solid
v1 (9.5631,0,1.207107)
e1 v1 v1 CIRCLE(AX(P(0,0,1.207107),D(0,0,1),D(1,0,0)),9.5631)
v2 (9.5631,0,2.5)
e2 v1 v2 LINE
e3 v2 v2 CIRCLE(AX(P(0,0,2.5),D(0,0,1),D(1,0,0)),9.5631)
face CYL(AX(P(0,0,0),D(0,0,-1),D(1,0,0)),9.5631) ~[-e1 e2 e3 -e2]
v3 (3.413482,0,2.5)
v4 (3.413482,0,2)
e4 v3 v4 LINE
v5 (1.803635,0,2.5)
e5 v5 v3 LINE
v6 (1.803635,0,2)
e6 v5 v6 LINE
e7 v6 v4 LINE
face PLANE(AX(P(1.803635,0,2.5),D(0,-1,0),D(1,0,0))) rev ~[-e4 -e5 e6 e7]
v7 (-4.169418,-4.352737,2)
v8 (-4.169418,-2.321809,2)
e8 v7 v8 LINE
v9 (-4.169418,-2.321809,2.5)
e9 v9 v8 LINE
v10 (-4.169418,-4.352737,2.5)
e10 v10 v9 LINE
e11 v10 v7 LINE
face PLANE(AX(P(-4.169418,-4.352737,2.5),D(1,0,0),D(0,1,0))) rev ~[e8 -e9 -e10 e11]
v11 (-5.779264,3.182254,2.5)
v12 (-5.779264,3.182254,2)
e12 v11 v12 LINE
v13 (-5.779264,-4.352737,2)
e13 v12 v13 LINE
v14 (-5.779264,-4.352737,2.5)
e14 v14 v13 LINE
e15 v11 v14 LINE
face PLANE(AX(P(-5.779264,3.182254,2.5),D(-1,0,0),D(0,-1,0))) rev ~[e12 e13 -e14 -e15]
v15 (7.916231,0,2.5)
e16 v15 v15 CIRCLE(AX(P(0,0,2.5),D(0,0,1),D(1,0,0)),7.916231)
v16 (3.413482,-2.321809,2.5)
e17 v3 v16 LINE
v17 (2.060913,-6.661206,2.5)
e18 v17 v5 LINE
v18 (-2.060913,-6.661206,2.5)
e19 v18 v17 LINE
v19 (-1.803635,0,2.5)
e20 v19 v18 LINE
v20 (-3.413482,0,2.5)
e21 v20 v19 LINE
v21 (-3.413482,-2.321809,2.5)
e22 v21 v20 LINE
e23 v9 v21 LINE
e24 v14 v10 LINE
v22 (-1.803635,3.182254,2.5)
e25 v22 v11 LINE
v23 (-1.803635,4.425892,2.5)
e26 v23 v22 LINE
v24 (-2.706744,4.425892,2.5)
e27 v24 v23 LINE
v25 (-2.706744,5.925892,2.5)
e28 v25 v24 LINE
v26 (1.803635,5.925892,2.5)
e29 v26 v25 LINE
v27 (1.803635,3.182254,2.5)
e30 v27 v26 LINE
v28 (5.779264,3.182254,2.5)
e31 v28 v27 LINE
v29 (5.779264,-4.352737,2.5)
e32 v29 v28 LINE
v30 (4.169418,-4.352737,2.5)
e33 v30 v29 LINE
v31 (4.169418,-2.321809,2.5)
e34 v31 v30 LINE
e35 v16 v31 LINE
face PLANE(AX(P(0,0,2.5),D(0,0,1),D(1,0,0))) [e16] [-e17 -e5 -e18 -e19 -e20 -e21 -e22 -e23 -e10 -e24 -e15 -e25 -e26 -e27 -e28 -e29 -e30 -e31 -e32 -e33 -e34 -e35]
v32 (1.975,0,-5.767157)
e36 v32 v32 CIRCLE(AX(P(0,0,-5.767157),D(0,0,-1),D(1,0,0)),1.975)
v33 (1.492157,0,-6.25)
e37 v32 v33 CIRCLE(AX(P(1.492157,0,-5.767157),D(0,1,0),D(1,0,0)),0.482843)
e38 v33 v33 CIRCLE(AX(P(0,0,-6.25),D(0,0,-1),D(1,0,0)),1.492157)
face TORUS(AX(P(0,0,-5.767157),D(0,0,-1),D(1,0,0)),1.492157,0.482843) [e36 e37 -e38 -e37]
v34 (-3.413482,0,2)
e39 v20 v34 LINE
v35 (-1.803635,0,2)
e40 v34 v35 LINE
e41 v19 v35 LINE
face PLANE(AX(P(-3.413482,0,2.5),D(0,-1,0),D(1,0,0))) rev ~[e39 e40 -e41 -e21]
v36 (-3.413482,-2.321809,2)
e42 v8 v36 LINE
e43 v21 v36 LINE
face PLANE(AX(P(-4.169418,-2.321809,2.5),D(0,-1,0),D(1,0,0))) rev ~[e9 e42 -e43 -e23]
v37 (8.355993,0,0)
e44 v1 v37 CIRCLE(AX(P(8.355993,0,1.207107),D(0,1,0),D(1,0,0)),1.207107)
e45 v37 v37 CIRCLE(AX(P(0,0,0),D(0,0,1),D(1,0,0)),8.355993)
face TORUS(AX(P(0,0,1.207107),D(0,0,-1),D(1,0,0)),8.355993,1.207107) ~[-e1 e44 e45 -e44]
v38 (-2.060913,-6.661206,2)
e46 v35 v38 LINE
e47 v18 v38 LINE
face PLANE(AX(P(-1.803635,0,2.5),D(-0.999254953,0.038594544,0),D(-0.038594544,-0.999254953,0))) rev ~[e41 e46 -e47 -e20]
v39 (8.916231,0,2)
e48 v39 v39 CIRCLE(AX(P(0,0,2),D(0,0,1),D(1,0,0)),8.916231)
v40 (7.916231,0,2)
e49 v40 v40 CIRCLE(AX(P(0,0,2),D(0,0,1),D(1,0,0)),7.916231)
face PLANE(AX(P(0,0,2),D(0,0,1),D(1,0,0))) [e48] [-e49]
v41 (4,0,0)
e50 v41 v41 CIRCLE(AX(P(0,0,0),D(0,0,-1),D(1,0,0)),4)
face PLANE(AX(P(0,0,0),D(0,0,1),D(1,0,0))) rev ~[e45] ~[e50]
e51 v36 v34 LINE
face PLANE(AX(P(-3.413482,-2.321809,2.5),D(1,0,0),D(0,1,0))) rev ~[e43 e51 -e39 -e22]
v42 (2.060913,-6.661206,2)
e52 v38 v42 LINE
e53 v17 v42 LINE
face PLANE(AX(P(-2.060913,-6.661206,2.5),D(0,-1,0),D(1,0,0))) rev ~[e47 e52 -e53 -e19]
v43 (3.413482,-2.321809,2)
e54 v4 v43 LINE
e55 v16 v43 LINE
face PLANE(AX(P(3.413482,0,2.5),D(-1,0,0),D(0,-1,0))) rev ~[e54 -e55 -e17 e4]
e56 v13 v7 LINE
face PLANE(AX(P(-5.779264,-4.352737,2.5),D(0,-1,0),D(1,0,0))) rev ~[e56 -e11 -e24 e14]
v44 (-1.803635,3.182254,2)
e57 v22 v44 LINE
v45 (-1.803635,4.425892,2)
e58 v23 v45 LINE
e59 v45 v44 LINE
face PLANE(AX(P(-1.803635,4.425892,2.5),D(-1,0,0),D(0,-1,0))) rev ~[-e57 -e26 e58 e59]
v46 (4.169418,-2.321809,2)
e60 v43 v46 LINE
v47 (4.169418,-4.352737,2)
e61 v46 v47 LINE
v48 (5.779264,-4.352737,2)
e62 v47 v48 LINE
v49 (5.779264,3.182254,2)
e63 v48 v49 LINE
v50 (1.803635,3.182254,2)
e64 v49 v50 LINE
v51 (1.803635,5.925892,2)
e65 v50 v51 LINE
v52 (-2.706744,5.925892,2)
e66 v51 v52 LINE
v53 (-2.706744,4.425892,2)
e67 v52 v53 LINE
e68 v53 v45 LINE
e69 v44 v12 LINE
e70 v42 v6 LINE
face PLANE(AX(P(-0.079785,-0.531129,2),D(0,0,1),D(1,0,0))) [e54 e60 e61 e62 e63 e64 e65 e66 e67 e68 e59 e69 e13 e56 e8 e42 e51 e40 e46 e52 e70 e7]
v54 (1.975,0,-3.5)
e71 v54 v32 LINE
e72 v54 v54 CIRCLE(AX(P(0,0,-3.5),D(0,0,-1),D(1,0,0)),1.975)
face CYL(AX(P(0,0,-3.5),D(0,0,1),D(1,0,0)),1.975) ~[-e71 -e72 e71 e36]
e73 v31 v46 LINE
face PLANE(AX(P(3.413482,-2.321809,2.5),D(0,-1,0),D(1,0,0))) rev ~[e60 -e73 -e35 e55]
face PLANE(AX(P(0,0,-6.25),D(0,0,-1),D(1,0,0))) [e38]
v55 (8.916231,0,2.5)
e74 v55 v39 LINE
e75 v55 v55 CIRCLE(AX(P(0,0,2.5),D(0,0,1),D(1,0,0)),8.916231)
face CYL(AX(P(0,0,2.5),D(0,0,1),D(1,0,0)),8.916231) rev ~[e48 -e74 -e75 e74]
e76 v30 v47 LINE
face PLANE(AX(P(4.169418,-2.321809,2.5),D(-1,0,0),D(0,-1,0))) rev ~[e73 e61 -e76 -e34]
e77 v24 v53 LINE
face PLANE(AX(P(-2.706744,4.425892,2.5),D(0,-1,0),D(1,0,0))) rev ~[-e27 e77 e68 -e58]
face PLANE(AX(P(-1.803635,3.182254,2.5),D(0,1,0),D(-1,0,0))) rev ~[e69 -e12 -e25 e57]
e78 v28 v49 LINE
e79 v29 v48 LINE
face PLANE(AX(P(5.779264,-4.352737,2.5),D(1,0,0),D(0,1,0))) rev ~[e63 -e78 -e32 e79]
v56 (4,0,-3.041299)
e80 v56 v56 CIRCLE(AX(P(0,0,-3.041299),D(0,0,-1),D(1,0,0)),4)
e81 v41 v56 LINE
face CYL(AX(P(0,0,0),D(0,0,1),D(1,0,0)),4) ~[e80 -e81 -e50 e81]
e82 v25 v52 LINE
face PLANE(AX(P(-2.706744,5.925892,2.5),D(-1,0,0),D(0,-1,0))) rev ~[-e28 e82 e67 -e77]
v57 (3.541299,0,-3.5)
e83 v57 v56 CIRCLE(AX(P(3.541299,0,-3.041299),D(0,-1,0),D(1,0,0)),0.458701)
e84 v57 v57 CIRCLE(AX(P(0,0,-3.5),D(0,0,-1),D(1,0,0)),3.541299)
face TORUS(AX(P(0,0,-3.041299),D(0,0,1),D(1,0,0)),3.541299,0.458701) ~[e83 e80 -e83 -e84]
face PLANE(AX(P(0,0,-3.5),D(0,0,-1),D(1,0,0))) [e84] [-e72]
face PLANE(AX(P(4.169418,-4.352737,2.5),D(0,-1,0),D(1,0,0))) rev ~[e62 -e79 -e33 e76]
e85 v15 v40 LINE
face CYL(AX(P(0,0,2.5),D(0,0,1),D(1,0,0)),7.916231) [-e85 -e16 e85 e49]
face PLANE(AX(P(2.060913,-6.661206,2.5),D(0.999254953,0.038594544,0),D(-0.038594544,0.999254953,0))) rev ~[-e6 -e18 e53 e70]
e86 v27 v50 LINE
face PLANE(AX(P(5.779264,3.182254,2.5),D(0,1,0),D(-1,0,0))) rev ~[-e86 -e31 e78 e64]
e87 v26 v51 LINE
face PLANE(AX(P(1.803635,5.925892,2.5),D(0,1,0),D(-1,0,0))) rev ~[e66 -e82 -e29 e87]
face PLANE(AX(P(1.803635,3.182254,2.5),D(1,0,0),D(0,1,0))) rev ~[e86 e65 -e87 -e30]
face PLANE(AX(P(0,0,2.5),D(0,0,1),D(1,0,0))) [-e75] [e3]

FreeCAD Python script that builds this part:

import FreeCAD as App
import Part
import Sketcher
Q = App.Units.Quantity


def edges_at(feature, points):
    """Names of the edges that pass closest to the given points."""
    edges = feature.Shape.Edges
    near = lambda p: min(range(len(edges)), key=lambda i: edges[i].distToShape(Part.Vertex(*p))[0])
    return sorted({f"Edge{near(p) + 1}" for p in points})


def add_polygon(sketch, points):
    """Adds a closed chain of lines whose ends are joined by coincident constraints."""
    first, n = sketch.GeometryCount, len(points)
    for a, b in zip(points, points[1:] + points[:1]):
        sketch.addGeometry(Part.LineSegment(App.Vector(*a, 0), App.Vector(*b, 0)), False)
    for i in range(n):
        sketch.addConstraint(Sketcher.Constraint("Coincident", first + i, 2, first + (i + 1) % n, 1))

doc = App.newDocument("Part")
params = doc.addObject("Spreadsheet::Sheet", "Params")
for row, (alias, value) in enumerate([
    ("pad1_length", "2.5 mm"),
    ("sketch2_height", "1.5 mm"),
    ("pocket1_length", "0.5 mm"),
    ("sketch3_diameter", "8 mm"),
    ("pad2_length", "3.5 mm"),
    ("fillet_radius", "1.207107 mm"),
    ("sketch4_diameter", "3.95 mm"),
    ("pad3_length", "2.75 mm"),
    ("fillet2_radius", "0.482843 mm"),
    ("fillet3_radius", "0.458701 mm"),
], start=1):
    params.set(f"A{row}", alias)
    params.set(f"B{row}", "=" + value)
    params.setAlias(f"B{row}", alias)

body = doc.addObject("PartDesign::Body", "Body")

sketch1 = body.newObject("Sketcher::SketchObject", "Sketch")
sketch1.AttachmentSupport = (doc.getObject("XY_Plane"), [""])
sketch1.MapMode = "FlatFace"
sketch1.addGeometry(Part.Circle(App.Vector(0, 0, 0), App.Vector(0, 0, 1), 10), False)
sketch1.addConstraint(Sketcher.Constraint("Coincident", 0, 3, -1, 1))
sketch1.addConstraint(Sketcher.Constraint("Diameter", 0, Q("19.1262 mm")))
pad1 = body.newObject("PartDesign::Pad", "Pad")
pad1.Profile = sketch1
pad1.setExpression("Length", "Params.pad1_length")

sketch2 = body.newObject("Sketcher::SketchObject", "Sketch001")
sketch2.AttachmentSupport = (doc.getObject("XY_Plane"), [""])
sketch2.MapMode = "FlatFace"
sketch2.AttachmentOffset = App.Placement(App.Vector(0, 0, 2.5), App.Rotation())
sketch2.addGeometry(Part.Circle(App.Vector(0, 0, 0), App.Vector(0, 0, 1), 8.9), False)
sketch2.addGeometry(Part.Circle(App.Vector(0, 0, 0), App.Vector(0, 0, 1), 7.9), False)
add_polygon(sketch2, [(1.8, 5.9), (-2.7, 5.9), (-2.7, 4.4), (-1.8, 4.4), (-1.8, 3.2), (-5.8, 3.2), (-5.8, -4.4), (-4.2, -4.4), (-4.2, -2.3), (-3.4, -2.3), (-3.4, 0), (-1.8, 0), (-2.1, -6.7), (2.1, -6.7), (1.8, 0), (3.4, 0), (3.4, -2.3), (4.2, -2.3), (4.2, -4.4), (5.8, -4.4), (5.8, 3.2), (1.8, 3.2)])
sketch2.addConstraint(Sketcher.Constraint("Horizontal", 2))
sketch2.addConstraint(Sketcher.Constraint("Vertical", 3))
sketch2.addConstraint(Sketcher.Constraint("Horizontal", 4))
sketch2.addConstraint(Sketcher.Constraint("Vertical", 5))
sketch2.addConstraint(Sketcher.Constraint("Horizontal", 6))
sketch2.addConstraint(Sketcher.Constraint("Vertical", 7))
sketch2.addConstraint(Sketcher.Constraint("Horizontal", 8))
sketch2.addConstraint(Sketcher.Constraint("Vertical", 9))
sketch2.addConstraint(Sketcher.Constraint("Horizontal", 10))
sketch2.addConstraint(Sketcher.Constraint("Vertical", 11))
sketch2.addConstraint(Sketcher.Constraint("Horizontal", 12))
sketch2.addConstraint(Sketcher.Constraint("Horizontal", 14))
sketch2.addConstraint(Sketcher.Constraint("Horizontal", 16))
sketch2.addConstraint(Sketcher.Constraint("Vertical", 17))
sketch2.addConstraint(Sketcher.Constraint("Horizontal", 18))
sketch2.addConstraint(Sketcher.Constraint("Vertical", 19))
sketch2.addConstraint(Sketcher.Constraint("Horizontal", 20))
sketch2.addConstraint(Sketcher.Constraint("Vertical", 21))
sketch2.addConstraint(Sketcher.Constraint("Horizontal", 22))
sketch2.addConstraint(Sketcher.Constraint("Vertical", 23))
sketch2.addConstraint(Sketcher.Constraint("Coincident", 0, 3, -1, 1))
sketch2.addConstraint(Sketcher.Constraint("Coincident", 1, 3, -1, 1))
sketch2.addConstraint(Sketcher.Constraint("Symmetric", 12, 2, 15, 2, -1, 1))
sketch2.addConstraint(Sketcher.Constraint("Symmetric", 11, 2, 16, 2, -2))
sketch2.addConstraint(Sketcher.Constraint("Symmetric", 9, 2, 18, 2, -2))
sketch2.addConstraint(Sketcher.Constraint("Symmetric", 7, 2, 20, 2, -2))
sketch2.addConstraint(Sketcher.Constraint("Symmetric", 5, 2, 22, 2, -2))
sketch2.addConstraint(Sketcher.Constraint("Vertical", 5, 2, 12, 2))
sketch2.addConstraint(Sketcher.Constraint("Equal", 8, 12))
sketch2.addConstraint(Sketcher.Constraint("Equal", 13, 15))
sketch2.addConstraint(Sketcher.Constraint("DistanceY", 3, 2, 3, 1, Q("1.5 mm")))
sketch2.addConstraint(Sketcher.Constraint("Diameter", 0, Q("17.832463 mm")))
sketch2.addConstraint(Sketcher.Constraint("Diameter", 1, Q("15.832463 mm")))
sketch2.addConstraint(Sketcher.Constraint("DistanceX", 2, 2, 2, 1, Q("4.510379 mm")))
sketch2.addConstraint(Sketcher.Constraint("DistanceX", 4, 1, 4, 2, Q("0.903109 mm")))
sketch2.addConstraint(Sketcher.Constraint("DistanceX", 6, 2, 6, 1, Q("3.97563 mm")))
sketch2.addConstraint(Sketcher.Constraint("DistanceY", 5, 2, 5, 1, Q("1.243639 mm")))
sketch2.addConstraint(Sketcher.Constraint("DistanceY", 7, 2, 7, 1, Q("7.534991 mm")))
sketch2.addConstraint(Sketcher.Constraint("DistanceY", 9, 1, 9, 2, Q("2.030928 mm")))
sketch2.addConstraint(Sketcher.Constraint("DistanceY", 11, 1, 11, 2, Q("2.321809 mm")))
sketch2.addConstraint(Sketcher.Constraint("DistanceX", 8, 1, 8, 2, Q("1.609847 mm")))
sketch2.addConstraint(Sketcher.Constraint("DistanceX", 14, 1, 14, 2, Q("4.121825 mm")))
sketch2.addConstraint(Sketcher.Constraint("DistanceY", 13, 2, 8, 2, Q("2.308468 mm")))
sketch2.setExpression("Constraints[52]", "Params.sketch2_height")
pocket1 = body.newObject("PartDesign::Pocket", "Pocket")
pocket1.Profile = sketch2
pocket1.setExpression("Length", "Params.pocket1_length")

sketch3 = body.newObject("Sketcher::SketchObject", "Sketch002")
sketch3.AttachmentSupport = (doc.getObject("XY_Plane"), [""])
sketch3.MapMode = "FlatFace"
sketch3.addGeometry(Part.Circle(App.Vector(0, 0, 0), App.Vector(0, 0, 1), 4), False)
sketch3.addConstraint(Sketcher.Constraint("Coincident", 0, 3, -1, 1))
sketch3.addConstraint(Sketcher.Constraint("Diameter", 0, Q("8 mm")))
sketch3.setExpression("Constraints[1]", "Params.sketch3_diameter")
pad2 = body.newObject("PartDesign::Pad", "Pad001")
pad2.Profile = sketch3
pad2.setExpression("Length", "Params.pad2_length")
pad2.Reversed = True
doc.recompute()

fillet = body.newObject("PartDesign::Fillet", "Fillet")
fillet.Base = (pad2, edges_at(pad2, [(-9.563, 0, 0)]))
fillet.setExpression("Radius", "Params.fillet_radius")

sketch4 = body.newObject("Sketcher::SketchObject", "Sketch003")
sketch4.AttachmentSupport = (doc.getObject("XY_Plane"), [""])
sketch4.MapMode = "FlatFace"
sketch4.AttachmentOffset = App.Placement(App.Vector(0, 0, -3.5), App.Rotation())
sketch4.addGeometry(Part.Circle(App.Vector(0, 0, 0), App.Vector(0, 0, 1), 2), False)
sketch4.addConstraint(Sketcher.Constraint("Coincident", 0, 3, -1, 1))
sketch4.addConstraint(Sketcher.Constraint("Diameter", 0, Q("3.95 mm")))
sketch4.setExpression("Constraints[1]", "Params.sketch4_diameter")
pad3 = body.newObject("PartDesign::Pad", "Pad002")
pad3.Profile = sketch4
pad3.setExpression("Length", "Params.pad3_length")
pad3.Reversed = True
doc.recompute()

fillet2 = body.newObject("PartDesign::Fillet", "Fillet001")
fillet2.Base = (pad3, edges_at(pad3, [(-1.975, 0, -6.25)]))
fillet2.setExpression("Radius", "Params.fillet2_radius")
doc.recompute()

fillet3 = body.newObject("PartDesign::Fillet", "Fillet002")
fillet3.Base = (fillet2, edges_at(fillet2, [(-4, 0, -3.5)]))
fillet3.setExpression("Radius", "Params.fillet3_radius")

doc.recompute()
